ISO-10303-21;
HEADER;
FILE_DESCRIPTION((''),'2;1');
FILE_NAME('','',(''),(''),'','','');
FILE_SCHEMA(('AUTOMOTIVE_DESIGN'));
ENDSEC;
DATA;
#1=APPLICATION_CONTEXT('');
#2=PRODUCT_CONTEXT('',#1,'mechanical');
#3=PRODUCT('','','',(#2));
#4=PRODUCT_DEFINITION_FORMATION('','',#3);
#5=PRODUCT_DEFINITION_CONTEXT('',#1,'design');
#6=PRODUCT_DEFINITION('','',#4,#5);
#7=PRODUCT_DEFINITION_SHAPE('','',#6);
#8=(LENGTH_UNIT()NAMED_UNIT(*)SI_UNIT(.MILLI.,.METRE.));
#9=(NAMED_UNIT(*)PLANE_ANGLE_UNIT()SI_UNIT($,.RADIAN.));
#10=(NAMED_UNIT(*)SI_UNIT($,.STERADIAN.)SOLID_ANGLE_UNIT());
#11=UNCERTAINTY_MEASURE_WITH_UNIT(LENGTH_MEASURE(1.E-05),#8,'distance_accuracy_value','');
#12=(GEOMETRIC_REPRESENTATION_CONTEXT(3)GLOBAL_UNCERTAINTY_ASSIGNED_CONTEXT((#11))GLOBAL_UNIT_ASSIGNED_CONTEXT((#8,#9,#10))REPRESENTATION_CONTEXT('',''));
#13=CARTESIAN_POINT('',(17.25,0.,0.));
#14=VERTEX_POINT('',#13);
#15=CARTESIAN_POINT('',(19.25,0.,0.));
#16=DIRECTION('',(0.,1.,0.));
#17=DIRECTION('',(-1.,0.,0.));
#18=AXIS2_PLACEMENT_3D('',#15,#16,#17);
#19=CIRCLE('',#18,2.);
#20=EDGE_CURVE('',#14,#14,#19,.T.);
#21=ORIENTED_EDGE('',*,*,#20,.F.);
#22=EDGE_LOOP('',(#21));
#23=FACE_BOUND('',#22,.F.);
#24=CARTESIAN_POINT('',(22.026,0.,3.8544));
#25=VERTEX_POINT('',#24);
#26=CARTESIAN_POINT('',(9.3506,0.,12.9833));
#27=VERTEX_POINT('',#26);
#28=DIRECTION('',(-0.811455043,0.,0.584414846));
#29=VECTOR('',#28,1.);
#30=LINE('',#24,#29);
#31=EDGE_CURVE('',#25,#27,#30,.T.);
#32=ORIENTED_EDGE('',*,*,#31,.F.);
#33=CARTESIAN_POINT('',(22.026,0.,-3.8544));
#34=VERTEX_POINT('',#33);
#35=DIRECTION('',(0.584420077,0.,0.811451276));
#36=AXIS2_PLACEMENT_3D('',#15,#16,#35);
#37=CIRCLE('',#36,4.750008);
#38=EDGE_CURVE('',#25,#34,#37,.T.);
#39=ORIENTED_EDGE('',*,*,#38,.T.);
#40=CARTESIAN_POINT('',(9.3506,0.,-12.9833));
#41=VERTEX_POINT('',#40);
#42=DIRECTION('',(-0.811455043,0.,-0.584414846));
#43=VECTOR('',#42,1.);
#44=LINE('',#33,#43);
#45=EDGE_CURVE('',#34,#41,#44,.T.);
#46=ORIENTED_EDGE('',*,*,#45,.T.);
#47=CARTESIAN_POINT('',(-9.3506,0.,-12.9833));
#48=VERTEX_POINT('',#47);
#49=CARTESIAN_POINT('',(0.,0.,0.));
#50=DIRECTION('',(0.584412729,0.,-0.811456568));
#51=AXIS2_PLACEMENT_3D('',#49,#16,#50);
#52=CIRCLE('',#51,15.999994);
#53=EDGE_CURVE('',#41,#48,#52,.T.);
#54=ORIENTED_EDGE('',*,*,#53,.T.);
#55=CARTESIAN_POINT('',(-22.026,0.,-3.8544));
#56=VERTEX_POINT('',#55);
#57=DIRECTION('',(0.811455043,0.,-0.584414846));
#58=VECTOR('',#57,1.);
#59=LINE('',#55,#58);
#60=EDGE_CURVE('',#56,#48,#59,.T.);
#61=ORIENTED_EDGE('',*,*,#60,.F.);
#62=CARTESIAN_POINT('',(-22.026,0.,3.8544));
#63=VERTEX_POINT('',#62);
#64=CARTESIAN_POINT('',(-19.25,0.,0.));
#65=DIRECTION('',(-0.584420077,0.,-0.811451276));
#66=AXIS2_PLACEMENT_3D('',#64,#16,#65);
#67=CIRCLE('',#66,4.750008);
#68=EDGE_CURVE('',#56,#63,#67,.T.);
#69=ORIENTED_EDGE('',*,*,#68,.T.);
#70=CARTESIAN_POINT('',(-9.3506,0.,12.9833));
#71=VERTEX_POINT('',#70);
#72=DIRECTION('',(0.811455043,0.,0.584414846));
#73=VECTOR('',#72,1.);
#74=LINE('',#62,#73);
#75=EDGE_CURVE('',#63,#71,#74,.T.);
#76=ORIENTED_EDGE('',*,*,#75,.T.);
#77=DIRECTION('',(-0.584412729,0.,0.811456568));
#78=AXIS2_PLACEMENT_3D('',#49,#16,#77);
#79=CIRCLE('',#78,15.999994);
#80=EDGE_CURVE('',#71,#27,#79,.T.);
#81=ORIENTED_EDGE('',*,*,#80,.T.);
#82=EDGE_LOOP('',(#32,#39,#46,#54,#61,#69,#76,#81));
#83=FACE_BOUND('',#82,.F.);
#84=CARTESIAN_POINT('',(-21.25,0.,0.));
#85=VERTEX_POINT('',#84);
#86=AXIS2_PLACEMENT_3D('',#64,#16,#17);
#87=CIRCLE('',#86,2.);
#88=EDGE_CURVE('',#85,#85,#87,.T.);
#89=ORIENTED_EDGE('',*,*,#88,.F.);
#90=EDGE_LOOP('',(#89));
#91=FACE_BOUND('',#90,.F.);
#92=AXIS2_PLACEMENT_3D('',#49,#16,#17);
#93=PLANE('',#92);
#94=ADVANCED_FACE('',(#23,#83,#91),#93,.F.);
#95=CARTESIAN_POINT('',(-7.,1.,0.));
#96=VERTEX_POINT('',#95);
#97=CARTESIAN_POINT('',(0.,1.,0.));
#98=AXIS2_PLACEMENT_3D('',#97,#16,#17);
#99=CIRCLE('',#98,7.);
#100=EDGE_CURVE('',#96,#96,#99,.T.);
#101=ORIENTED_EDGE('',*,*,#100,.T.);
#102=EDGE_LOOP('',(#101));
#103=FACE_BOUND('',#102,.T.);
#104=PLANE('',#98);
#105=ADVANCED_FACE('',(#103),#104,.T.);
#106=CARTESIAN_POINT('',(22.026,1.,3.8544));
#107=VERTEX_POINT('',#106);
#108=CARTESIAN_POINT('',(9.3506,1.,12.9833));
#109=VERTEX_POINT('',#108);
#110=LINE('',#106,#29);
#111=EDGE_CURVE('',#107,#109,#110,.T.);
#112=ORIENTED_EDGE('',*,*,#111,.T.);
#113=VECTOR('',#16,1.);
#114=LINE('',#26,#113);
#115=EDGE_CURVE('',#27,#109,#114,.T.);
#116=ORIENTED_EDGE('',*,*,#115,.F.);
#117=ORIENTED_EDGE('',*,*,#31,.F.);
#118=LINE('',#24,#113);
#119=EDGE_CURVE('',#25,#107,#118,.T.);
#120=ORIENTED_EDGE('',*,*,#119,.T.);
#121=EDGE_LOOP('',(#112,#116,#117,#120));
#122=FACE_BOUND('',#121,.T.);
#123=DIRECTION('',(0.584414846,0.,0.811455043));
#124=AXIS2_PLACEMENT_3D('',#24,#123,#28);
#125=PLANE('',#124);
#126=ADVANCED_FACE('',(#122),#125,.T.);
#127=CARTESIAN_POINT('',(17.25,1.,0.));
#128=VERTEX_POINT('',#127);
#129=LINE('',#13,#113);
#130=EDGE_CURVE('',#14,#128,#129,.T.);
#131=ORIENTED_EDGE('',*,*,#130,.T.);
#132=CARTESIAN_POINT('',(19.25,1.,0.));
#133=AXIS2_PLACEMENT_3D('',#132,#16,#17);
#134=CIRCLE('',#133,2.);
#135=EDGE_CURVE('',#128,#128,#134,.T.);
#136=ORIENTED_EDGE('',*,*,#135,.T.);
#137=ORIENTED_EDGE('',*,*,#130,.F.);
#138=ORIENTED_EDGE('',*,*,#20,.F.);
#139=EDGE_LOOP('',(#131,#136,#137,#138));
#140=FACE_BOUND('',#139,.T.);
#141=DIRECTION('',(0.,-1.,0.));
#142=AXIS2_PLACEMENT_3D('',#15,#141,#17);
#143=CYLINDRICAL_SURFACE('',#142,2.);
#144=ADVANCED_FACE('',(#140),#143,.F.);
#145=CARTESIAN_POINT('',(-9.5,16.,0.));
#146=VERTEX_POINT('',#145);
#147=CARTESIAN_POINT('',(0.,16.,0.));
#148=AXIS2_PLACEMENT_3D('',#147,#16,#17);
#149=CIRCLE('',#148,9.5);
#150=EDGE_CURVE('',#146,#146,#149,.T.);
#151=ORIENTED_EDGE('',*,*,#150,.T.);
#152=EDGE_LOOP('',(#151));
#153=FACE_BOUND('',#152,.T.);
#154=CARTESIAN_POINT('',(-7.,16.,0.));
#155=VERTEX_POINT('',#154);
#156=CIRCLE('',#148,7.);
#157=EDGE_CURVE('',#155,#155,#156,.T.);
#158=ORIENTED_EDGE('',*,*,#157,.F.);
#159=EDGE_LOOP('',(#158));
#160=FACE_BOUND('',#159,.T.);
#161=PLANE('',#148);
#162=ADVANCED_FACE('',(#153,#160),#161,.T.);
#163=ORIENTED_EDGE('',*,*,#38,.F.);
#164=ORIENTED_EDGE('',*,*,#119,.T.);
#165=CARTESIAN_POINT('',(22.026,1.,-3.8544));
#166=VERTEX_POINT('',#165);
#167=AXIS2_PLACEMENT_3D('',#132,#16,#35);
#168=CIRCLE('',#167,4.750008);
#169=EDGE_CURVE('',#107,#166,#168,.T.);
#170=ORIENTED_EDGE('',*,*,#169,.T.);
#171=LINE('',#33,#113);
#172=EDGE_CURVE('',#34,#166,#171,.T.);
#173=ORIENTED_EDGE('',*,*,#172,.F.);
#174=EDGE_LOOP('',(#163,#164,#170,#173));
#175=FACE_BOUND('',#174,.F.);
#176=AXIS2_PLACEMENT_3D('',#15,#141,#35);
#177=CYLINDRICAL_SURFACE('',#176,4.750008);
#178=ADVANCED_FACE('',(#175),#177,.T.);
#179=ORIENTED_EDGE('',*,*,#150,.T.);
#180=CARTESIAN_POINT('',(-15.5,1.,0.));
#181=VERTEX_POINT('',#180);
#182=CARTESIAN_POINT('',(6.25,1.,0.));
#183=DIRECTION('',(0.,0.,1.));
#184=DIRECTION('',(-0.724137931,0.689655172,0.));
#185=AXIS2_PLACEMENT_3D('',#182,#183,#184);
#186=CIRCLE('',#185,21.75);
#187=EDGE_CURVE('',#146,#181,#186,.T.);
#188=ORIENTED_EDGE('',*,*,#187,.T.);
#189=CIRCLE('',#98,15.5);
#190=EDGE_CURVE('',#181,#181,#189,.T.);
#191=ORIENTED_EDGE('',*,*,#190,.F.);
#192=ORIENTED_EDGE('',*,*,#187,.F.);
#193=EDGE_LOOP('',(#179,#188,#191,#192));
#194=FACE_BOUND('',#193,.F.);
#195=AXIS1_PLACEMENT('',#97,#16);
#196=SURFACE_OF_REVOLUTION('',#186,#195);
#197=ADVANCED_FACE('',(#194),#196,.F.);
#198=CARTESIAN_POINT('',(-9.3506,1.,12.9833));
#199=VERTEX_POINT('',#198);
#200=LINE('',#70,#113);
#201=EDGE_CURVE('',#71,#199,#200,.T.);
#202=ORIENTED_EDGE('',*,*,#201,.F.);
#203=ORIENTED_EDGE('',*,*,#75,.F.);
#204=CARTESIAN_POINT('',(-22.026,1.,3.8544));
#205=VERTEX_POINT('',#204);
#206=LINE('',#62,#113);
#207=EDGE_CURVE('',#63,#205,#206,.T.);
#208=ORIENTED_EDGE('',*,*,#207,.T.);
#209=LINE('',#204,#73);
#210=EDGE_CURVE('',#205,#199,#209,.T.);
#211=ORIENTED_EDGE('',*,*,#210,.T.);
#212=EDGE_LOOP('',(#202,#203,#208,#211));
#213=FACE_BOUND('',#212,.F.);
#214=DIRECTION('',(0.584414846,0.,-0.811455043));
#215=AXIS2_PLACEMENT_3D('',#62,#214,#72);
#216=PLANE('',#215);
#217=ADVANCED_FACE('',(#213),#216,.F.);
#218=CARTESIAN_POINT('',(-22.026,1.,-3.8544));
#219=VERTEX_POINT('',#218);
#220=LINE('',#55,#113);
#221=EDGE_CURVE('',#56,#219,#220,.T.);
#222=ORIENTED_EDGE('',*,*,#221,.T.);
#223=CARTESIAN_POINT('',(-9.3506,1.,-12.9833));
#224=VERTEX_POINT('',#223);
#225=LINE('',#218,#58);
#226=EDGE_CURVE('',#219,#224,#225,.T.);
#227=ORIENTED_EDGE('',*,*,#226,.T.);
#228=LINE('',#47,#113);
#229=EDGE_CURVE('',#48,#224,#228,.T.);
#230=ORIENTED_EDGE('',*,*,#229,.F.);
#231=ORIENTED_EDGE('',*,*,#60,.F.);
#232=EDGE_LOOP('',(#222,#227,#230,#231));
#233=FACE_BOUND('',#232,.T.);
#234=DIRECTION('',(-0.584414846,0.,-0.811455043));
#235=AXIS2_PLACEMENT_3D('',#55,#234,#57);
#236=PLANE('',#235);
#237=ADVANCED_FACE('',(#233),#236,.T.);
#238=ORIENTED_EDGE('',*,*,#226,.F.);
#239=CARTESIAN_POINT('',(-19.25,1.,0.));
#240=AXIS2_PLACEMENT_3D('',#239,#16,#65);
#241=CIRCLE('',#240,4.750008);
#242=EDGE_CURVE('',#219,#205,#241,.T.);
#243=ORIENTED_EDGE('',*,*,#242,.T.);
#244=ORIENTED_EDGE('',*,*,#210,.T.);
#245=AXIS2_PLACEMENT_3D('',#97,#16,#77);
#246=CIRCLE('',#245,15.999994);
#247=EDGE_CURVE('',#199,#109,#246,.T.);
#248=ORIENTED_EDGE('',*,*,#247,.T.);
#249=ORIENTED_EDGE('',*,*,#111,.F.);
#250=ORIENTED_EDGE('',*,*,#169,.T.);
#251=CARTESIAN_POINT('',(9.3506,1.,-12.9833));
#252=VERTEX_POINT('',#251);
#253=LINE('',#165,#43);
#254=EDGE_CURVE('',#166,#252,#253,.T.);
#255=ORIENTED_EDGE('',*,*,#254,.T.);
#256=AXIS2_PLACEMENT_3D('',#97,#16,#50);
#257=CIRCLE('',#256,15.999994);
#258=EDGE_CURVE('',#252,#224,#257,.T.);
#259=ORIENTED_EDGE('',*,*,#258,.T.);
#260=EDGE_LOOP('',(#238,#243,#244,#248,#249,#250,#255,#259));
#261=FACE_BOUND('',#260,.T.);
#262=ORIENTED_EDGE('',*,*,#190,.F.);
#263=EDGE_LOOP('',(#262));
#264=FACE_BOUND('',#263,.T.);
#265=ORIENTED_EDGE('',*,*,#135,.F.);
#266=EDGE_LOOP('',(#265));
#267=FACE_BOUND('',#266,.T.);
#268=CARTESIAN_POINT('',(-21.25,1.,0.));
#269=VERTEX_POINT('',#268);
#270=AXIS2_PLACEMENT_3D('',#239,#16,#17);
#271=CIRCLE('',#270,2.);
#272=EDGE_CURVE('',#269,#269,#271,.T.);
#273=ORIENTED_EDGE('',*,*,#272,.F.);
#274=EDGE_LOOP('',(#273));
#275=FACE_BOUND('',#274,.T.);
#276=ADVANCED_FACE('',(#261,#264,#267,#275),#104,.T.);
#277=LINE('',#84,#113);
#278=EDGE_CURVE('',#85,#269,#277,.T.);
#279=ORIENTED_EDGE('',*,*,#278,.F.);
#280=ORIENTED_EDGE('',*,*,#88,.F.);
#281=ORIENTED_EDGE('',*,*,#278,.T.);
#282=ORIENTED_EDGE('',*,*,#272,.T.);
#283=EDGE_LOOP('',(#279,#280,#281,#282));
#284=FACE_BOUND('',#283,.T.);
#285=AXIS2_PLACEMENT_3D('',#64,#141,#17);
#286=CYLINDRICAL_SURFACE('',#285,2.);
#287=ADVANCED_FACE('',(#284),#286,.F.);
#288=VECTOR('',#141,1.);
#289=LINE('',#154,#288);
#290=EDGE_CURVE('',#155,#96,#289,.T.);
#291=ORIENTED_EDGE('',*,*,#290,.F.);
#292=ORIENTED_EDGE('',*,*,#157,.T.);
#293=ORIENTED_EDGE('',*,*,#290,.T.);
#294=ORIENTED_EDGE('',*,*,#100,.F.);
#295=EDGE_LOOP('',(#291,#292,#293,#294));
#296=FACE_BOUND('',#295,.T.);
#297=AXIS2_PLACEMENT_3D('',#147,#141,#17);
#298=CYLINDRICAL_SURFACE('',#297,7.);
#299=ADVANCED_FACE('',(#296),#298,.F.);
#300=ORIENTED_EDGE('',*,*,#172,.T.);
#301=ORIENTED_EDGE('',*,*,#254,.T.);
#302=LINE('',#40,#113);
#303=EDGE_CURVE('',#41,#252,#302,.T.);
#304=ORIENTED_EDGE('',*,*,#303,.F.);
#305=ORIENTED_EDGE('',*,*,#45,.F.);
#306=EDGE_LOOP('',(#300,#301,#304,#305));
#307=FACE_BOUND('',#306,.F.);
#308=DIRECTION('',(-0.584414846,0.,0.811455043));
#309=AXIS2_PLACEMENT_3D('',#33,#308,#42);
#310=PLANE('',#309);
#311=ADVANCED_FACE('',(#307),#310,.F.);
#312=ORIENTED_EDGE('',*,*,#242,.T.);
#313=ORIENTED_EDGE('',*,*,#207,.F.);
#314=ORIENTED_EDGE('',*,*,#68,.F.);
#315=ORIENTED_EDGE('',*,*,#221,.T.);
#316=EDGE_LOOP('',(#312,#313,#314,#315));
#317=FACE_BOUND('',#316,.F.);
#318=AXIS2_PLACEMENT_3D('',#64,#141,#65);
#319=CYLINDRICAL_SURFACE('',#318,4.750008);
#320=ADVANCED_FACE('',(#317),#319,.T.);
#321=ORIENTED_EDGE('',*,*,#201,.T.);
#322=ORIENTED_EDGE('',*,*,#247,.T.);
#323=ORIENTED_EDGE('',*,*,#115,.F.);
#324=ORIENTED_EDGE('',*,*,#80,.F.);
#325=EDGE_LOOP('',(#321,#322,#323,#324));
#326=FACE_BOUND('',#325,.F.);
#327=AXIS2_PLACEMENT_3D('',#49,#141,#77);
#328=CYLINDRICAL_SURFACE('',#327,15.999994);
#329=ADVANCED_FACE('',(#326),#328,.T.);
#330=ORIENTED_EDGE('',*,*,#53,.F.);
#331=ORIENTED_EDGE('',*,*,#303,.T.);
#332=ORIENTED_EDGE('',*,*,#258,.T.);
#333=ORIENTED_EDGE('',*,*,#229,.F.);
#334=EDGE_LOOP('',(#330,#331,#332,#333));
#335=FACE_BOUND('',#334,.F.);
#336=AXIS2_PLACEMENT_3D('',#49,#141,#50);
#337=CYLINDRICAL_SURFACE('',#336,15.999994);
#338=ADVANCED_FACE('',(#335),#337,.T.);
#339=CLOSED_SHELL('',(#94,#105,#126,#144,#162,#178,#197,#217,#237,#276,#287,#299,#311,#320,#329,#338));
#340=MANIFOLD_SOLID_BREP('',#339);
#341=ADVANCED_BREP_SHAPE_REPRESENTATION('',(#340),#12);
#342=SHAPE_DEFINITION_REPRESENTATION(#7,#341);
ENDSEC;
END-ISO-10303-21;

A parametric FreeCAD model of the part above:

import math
import FreeCAD as App
import Part
import Sketcher

doc = App.newDocument("Part")
body = doc.addObject("PartDesign::Body", "Body")

sketch1 = body.newObject("Sketcher::SketchObject", "Sketch")
sketch1.AttachmentSupport = (doc.getObject("XZ_Plane"), [""])
sketch1.MapMode = "FlatFace"
sketch1.addGeometry(Part.LineSegment(App.Vector(-9.3506, -12.9833, 0), App.Vector(-22.026, -3.8544, 0)), False)
sketch1.addGeometry(Part.ArcOfCircle(Part.Circle(App.Vector(-19.25, 0, 0), App.Vector(0, 0, 1), 4.750008), math.radians(125.762032), math.radians(234.237968)), False)
sketch1.addGeometry(Part.LineSegment(App.Vector(-22.026, 3.8544, 0), App.Vector(-9.3506, 12.9833, 0)), False)
sketch1.addGeometry(Part.ArcOfCircle(Part.Circle(App.Vector(0, 0, 0), App.Vector(0, 0, 1), 15.999994), math.radians(54.238487), math.radians(125.761513)), False)
sketch1.addGeometry(Part.LineSegment(App.Vector(9.3506, 12.9833, 0), App.Vector(22.026, 3.8544, 0)), False)
sketch1.addGeometry(Part.ArcOfCircle(Part.Circle(App.Vector(19.25, 0, 0), App.Vector(0, 0, 1), 4.750008), math.radians(-54.237968), math.radians(54.237968)), False)
sketch1.addGeometry(Part.LineSegment(App.Vector(22.026, -3.8544, 0), App.Vector(9.3506, -12.9833, 0)), False)
sketch1.addGeometry(Part.ArcOfCircle(Part.Circle(App.Vector(0, 0, 0), App.Vector(0, 0, 1), 15.999994), math.radians(-125.761513), math.radians(-54.238487)), False)
sketch1.addGeometry(Part.Circle(App.Vector(19.25, 0, 0), App.Vector(0, 0, 1), 2), False)
sketch1.addGeometry(Part.Circle(App.Vector(-19.25, 0, 0), App.Vector(0, 0, 1), 2), False)
sketch1.addConstraint(Sketcher.Constraint("Tangent", 0, 2, 1, 2))
sketch1.addConstraint(Sketcher.Constraint("Tangent", 1, 1, 2, 1))
sketch1.addConstraint(Sketcher.Constraint("Tangent", 2, 2, 3, 2))
sketch1.addConstraint(Sketcher.Constraint("Tangent", 3, 1, 4, 1))
sketch1.addConstraint(Sketcher.Constraint("Tangent", 4, 2, 5, 2))
sketch1.addConstraint(Sketcher.Constraint("Tangent", 5, 1, 6, 1))
sketch1.addConstraint(Sketcher.Constraint("Tangent", 6, 2, 7, 2))
sketch1.addConstraint(Sketcher.Constraint("Tangent", 7, 1, 0, 1))
sketch1.addConstraint(Sketcher.Constraint("Coincident", 3, 3, -1, 1))
sketch1.addConstraint(Sketcher.Constraint("Coincident", 7, 3, -1, 1))
sketch1.addConstraint(Sketcher.Constraint("Coincident", 8, 3, 5, 3))
sketch1.addConstraint(Sketcher.Constraint("Coincident", 9, 3, 1, 3))
sketch1.addConstraint(Sketcher.Constraint("Equal", 1, 5))
sketch1.addConstraint(Sketcher.Constraint("Equal", 3, 7))
sketch1.addConstraint(Sketcher.Constraint("Equal", 8, 9))
sketch1.addConstraint(Sketcher.Constraint("Symmetric", 1, 3, 5, 3, -1, 1))
sketch1.addConstraint(Sketcher.Constraint("PointOnObject", 1, 3, -1))
sketch1.addConstraint(Sketcher.Constraint("Diameter", 8, 4.0))
sketch1.addConstraint(Sketcher.Constraint("Radius", 3, 16.0))
sketch1.addConstraint(Sketcher.Constraint("DistanceX", 1, 3, 5, 3, 38.5))
sketch1.addConstraint(Sketcher.Constraint("Radius", 1, 4.75))
pad1 = body.newObject("PartDesign::Pad", "Pad")
pad1.Profile = sketch1
pad1.Length = 1
pad1.Reversed = True

sketch2 = body.newObject("Sketcher::SketchObject", "Sketch001")
sketch2.AttachmentSupport = (doc.getObject("XY_Plane"), [""])
sketch2.MapMode = "FlatFace"
sketch2.addGeometry(Part.ArcOfCircle(Part.Circle(App.Vector(6.25, 1, 0), App.Vector(0, 0, 1), 21.75), math.radians(136.397181), math.radians(180)), False)
sketch2.addGeometry(Part.LineSegment(App.Vector(-15.5, 1, 0), App.Vector(-7, 1, 0)), False)
sketch2.addGeometry(Part.LineSegment(App.Vector(-7, 1, 0), App.Vector(-7, 16, 0)), False)
sketch2.addGeometry(Part.LineSegment(App.Vector(-7, 16, 0), App.Vector(-9.5, 16, 0)), False)
sketch2.addConstraint(Sketcher.Constraint("Coincident", 0, 2, 1, 1))
sketch2.addConstraint(Sketcher.Constraint("Coincident", 1, 2, 2, 1))
sketch2.addConstraint(Sketcher.Constraint("Coincident", 2, 2, 3, 1))
sketch2.addConstraint(Sketcher.Constraint("Coincident", 3, 2, 0, 1))
sketch2.addConstraint(Sketcher.Constraint("Horizontal", 1))
sketch2.addConstraint(Sketcher.Constraint("Vertical", 2))
sketch2.addConstraint(Sketcher.Constraint("Horizontal", 3))
sketch2.addConstraint(Sketcher.Constraint("DistanceY", -1, 1, 2, 2, 16.0))
sketch2.addConstraint(Sketcher.Constraint("DistanceY", 2, 1, 2, 2, 15.0))
sketch2.addConstraint(Sketcher.Constraint("Radius", 0, 21.75))
sketch2.addConstraint(Sketcher.Constraint("DistanceX", 1, 1, 1, 2, 8.5))
sketch2.addConstraint(Sketcher.Constraint("DistanceX", 3, 2, 3, 1, 2.5))
sketch2.addConstraint(Sketcher.Constraint("DistanceX", 1, 2, -1, 1, 7.0))
revolution = body.newObject("PartDesign::Revolution", "Revolution")
revolution.Profile = sketch2
revolution.ReferenceAxis = (sketch2, ["V_Axis"])
revolution.Angle = 360

doc.recompute()
